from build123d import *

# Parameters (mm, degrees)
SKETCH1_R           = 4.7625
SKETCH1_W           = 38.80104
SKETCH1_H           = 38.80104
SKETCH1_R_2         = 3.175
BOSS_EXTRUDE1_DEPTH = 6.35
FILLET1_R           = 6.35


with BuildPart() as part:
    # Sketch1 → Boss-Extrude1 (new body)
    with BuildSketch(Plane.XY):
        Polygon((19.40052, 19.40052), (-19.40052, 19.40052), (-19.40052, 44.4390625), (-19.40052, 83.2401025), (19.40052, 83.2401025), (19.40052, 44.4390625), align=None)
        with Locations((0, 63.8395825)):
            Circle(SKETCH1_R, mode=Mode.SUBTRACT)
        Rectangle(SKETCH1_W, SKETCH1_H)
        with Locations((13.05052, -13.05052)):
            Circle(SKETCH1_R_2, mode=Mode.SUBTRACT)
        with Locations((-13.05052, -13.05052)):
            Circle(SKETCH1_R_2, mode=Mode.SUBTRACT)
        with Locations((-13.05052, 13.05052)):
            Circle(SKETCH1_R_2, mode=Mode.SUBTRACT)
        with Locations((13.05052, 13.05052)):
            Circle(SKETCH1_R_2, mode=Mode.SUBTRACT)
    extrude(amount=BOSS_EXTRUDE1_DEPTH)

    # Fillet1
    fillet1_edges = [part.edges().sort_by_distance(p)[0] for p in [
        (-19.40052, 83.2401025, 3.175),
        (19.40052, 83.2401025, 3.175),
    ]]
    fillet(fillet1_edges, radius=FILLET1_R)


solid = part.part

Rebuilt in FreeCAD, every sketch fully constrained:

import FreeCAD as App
import Part
import Sketcher
from FreeCAD import Vector
Q = App.Units.Quantity


def edges_at(feature, points):
    """Names of the edges that pass closest to the given points."""
    edges = feature.Shape.Edges
    near = lambda p: min(range(len(edges)), key=lambda i: edges[i].distToShape(Part.Vertex(*p))[0])
    return sorted({f"Edge{near(p) + 1}" for p in points})

doc = App.newDocument("Part")
body = doc.addObject("PartDesign::Body", "Body")

sketch1 = body.newObject("Sketcher::SketchObject", "Sketch")
sketch1.AttachmentSupport = (doc.getObject("XY_Plane"), [""])
sketch1.MapMode = "FlatFace"
sketch1.addGeometry(Part.LineSegment(Vector(19.4, -19.4, 0), Vector(19.4, 83.2, 0)), False)
sketch1.addGeometry(Part.LineSegment(Vector(19.4, 83.2, 0), Vector(-19.4, 83.2, 0)), False)
sketch1.addGeometry(Part.LineSegment(Vector(-19.4, 83.2, 0), Vector(-19.4, -19.4, 0)), False)
sketch1.addGeometry(Part.LineSegment(Vector(-19.4, -19.4, 0), Vector(19.4, -19.4, 0)), False)
sketch1.addGeometry(Part.Circle(Vector(13.1, -13.1, 0), Vector(0, 0, 1), 3.2), False)
sketch1.addGeometry(Part.Circle(Vector(13.1, 13.1, 0), Vector(0, 0, 1), 3.2), False)
sketch1.addGeometry(Part.Circle(Vector(-13.1, -13.1, 0), Vector(0, 0, 1), 3.2), False)
sketch1.addGeometry(Part.Circle(Vector(-13.1, 13.1, 0), Vector(0, 0, 1), 3.2), False)
sketch1.addGeometry(Part.Circle(Vector(0, 63.8, 0), Vector(0, 0, 1), 4.8), False)
sketch1.addConstraint(Sketcher.Constraint("Coincident", 0, 2, 1, 1))
sketch1.addConstraint(Sketcher.Constraint("Coincident", 1, 2, 2, 1))
sketch1.addConstraint(Sketcher.Constraint("Coincident", 2, 2, 3, 1))
sketch1.addConstraint(Sketcher.Constraint("Coincident", 3, 2, 0, 1))
sketch1.addConstraint(Sketcher.Constraint("Vertical", 0))
sketch1.addConstraint(Sketcher.Constraint("Horizontal", 1))
sketch1.addConstraint(Sketcher.Constraint("Vertical", 2))
sketch1.addConstraint(Sketcher.Constraint("Horizontal", 3))
sketch1.addConstraint(Sketcher.Constraint("Equal", 4, 5))
sketch1.addConstraint(Sketcher.Constraint("Equal", 5, 6))
sketch1.addConstraint(Sketcher.Constraint("Equal", 6, 7))
sketch1.addConstraint(Sketcher.Constraint("Symmetric", 5, 3, 6, 3, -1, 1))
sketch1.addConstraint(Sketcher.Constraint("Symmetric", 4, 3, 7, 3, -1, 1))
sketch1.addConstraint(Sketcher.Constraint("Symmetric", 4, 3, 6, 3, -2))
sketch1.addConstraint(Sketcher.Constraint("PointOnObject", 8, 3, -2))
sketch1.addConstraint(Sketcher.Constraint("Diameter", 4, Q("0.25 in")))
sketch1.addConstraint(Sketcher.Constraint("Diameter", 8, Q("0.375 in")))
sketch1.addConstraint(Sketcher.Constraint("DistanceX", 5, 3, 0, 2, Q("0.25 in")))
sketch1.addConstraint(Sketcher.Constraint("DistanceX", 1, 2, 7, 3, Q("0.25 in")))
sketch1.addConstraint(Sketcher.Constraint("DistanceY", 2, 2, 6, 3, Q("0.25 in")))
sketch1.addConstraint(Sketcher.Constraint("DistanceX", 1, 2, 1, 1, Q("1.5276 in")))
sketch1.addConstraint(Sketcher.Constraint("DistanceY", 4, 3, -1, 1, Q("0.5138 in")))
sketch1.addConstraint(Sketcher.Constraint("DistanceY", 8, 3, 0, 2, Q("0.7638 in")))
sketch1.addConstraint(Sketcher.Constraint("DistanceY", 0, 1, 0, 2, 102.640623))
pad1 = body.newObject("PartDesign::Pad", "Pad")
pad1.Profile = sketch1
pad1.Length = Q("0.25 in")
doc.recompute()

fillet = body.newObject("PartDesign::Fillet", "Fillet")
fillet.Base = (pad1, edges_at(pad1, [(-19.401, 83.24, 3.175), (19.401, 83.24, 3.175)]))
fillet.Radius = Q("0.25 in")

doc.recompute()
